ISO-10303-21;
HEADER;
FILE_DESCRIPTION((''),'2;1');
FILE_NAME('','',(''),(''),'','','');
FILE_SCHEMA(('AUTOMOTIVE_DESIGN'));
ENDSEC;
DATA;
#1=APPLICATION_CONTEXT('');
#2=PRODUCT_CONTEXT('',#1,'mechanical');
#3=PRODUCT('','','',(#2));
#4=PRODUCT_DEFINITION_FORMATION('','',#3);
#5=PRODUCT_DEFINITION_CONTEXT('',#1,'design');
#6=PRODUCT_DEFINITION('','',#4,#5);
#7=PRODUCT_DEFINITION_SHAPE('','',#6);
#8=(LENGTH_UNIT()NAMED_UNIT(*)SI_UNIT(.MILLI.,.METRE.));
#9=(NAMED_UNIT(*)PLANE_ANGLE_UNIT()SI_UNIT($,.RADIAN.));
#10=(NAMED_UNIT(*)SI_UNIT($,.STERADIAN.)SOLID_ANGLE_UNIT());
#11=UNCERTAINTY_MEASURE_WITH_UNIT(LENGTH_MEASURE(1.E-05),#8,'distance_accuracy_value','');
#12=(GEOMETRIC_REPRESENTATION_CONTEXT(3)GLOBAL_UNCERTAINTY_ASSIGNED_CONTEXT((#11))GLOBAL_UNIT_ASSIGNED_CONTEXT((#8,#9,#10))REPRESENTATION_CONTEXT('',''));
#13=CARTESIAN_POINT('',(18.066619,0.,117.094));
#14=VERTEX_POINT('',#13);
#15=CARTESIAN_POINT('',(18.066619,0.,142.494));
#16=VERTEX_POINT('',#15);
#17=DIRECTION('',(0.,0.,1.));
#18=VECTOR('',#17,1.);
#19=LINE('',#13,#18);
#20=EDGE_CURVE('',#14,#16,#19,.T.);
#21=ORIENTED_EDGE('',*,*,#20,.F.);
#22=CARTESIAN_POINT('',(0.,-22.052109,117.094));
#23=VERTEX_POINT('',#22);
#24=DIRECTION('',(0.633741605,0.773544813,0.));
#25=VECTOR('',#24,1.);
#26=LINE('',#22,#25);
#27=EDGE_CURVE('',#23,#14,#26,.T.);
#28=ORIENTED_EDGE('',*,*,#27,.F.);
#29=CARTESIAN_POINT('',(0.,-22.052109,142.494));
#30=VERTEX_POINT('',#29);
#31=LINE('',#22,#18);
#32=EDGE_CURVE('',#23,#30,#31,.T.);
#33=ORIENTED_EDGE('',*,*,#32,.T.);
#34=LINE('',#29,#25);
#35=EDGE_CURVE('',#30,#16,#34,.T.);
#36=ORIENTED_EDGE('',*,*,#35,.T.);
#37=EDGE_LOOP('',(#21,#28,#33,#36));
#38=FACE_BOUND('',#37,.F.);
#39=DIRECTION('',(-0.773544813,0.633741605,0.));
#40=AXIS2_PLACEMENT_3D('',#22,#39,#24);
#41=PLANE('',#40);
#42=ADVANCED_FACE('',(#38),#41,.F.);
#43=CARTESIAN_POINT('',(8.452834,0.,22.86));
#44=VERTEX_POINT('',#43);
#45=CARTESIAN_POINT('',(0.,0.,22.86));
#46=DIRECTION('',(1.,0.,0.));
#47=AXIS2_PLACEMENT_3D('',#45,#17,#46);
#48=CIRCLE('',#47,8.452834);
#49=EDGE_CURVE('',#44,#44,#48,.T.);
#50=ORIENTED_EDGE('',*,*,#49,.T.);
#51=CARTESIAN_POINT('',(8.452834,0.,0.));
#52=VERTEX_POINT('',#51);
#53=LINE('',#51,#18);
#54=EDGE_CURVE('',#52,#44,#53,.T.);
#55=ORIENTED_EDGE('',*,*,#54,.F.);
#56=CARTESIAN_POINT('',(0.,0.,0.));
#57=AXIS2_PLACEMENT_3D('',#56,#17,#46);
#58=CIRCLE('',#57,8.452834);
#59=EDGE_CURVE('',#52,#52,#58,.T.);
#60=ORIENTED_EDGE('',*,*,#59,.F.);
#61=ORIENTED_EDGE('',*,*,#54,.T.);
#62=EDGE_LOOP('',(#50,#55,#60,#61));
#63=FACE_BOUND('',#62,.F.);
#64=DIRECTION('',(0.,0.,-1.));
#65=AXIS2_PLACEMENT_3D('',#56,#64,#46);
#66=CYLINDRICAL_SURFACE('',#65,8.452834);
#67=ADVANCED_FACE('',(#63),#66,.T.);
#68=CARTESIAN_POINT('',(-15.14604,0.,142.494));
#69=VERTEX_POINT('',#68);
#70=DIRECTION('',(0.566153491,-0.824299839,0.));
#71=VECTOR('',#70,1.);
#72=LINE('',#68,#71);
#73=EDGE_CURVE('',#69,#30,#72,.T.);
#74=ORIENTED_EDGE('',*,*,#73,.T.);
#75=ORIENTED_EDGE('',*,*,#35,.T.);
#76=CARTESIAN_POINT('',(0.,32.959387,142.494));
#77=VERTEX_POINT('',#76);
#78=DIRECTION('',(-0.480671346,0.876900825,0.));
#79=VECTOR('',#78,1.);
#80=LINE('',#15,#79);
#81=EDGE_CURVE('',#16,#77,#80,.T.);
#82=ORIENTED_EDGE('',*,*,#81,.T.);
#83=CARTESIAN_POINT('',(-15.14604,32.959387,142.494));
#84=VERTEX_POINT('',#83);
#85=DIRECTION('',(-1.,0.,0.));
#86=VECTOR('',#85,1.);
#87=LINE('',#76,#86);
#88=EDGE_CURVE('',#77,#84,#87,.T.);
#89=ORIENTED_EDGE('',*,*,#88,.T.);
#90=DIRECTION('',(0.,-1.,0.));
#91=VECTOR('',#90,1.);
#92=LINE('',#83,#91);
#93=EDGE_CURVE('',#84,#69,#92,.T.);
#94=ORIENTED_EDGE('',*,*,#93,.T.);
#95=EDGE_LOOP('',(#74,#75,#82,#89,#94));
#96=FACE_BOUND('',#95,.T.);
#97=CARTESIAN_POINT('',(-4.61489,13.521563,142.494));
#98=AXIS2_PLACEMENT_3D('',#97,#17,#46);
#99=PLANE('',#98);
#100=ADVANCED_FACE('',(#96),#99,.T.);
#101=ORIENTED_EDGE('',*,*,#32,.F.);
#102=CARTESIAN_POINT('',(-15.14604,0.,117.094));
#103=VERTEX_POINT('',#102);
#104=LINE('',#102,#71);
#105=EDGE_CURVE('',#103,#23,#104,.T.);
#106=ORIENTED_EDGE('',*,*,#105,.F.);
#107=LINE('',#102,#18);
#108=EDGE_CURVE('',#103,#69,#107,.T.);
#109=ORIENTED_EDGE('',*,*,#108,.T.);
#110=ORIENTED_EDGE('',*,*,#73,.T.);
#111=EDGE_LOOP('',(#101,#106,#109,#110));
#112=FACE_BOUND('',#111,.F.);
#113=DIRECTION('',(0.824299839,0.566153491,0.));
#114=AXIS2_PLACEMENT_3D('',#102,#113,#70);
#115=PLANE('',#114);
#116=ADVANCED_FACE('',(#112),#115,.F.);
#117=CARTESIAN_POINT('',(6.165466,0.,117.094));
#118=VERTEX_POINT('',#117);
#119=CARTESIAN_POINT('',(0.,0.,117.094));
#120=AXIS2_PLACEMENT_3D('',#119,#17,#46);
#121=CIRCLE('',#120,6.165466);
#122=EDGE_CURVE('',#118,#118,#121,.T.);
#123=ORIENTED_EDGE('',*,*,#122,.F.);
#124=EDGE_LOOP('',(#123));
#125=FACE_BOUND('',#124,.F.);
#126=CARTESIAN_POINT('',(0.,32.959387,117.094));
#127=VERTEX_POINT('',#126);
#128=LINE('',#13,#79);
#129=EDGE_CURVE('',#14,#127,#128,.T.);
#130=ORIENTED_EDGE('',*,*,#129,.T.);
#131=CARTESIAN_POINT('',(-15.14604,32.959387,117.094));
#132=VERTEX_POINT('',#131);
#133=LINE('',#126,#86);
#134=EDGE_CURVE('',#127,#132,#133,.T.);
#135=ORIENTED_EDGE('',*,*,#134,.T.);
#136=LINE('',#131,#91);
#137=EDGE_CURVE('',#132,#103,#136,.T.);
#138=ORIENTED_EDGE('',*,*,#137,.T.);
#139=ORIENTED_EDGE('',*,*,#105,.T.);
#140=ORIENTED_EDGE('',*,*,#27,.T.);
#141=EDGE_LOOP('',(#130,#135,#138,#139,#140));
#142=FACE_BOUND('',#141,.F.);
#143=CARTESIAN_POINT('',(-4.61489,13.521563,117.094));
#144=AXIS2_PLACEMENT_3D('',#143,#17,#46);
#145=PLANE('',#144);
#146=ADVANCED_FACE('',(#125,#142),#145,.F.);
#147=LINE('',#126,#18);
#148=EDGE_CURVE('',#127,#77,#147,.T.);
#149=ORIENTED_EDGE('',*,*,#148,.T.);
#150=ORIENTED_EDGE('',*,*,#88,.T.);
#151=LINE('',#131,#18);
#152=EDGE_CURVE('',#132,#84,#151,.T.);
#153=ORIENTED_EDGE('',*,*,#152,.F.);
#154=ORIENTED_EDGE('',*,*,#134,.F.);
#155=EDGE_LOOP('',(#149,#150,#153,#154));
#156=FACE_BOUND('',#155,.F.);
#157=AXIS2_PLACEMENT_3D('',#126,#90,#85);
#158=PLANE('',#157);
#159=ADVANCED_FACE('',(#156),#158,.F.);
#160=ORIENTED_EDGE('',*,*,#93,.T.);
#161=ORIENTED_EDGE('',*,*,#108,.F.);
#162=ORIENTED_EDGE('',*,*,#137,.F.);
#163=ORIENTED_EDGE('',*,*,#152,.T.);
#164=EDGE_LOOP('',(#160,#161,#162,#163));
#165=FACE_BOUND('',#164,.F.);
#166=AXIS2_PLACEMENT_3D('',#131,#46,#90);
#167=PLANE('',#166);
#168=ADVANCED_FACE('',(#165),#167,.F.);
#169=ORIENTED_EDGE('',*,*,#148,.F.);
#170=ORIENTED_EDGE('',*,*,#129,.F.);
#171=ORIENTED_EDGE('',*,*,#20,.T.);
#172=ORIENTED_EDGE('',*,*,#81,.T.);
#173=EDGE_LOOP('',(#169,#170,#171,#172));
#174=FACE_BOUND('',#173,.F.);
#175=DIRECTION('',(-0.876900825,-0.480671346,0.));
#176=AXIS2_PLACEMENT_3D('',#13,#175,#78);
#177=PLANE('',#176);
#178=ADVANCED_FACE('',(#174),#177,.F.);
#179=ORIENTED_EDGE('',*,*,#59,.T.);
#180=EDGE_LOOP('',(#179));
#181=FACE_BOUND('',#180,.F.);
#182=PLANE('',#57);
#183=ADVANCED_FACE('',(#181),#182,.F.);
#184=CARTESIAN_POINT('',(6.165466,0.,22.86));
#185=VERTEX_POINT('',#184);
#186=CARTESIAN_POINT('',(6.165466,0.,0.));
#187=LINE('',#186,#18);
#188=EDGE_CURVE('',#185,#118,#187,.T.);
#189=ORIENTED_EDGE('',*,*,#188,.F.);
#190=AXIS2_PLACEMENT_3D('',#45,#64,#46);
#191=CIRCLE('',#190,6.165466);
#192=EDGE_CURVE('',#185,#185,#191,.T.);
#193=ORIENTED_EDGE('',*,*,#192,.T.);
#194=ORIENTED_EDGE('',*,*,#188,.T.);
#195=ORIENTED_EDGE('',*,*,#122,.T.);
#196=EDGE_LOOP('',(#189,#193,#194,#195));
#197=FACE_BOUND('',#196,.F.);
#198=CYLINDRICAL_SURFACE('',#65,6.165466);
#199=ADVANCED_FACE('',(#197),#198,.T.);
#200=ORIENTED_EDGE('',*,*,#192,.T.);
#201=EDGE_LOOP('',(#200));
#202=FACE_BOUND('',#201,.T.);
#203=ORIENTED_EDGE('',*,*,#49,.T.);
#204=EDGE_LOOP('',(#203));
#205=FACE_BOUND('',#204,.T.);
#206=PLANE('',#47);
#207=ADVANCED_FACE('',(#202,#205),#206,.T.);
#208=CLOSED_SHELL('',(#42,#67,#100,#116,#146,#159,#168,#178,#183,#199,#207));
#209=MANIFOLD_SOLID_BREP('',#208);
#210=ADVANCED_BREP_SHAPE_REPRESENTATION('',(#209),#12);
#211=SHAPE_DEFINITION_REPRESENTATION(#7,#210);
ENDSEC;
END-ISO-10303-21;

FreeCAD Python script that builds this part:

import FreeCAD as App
import Part
import Sketcher
Q = App.Units.Quantity

doc = App.newDocument("Part")
body = doc.addObject("PartDesign::Body", "Body")

# Sketch on XY plane
sketch1 = body.newObject("Sketcher::SketchObject", "Sketch")
sketch1.AttachmentSupport = (doc.getObject("XY_Plane"), [""])
sketch1.MapMode = "FlatFace"
sketch1.addGeometry(Part.Circle(App.Vector(0, 0, 0), App.Vector(0, 0, 1), 6.165466), False)
sketch1.addConstraint([
    Sketcher.Constraint("Coincident", 0, 3, -1, 1),
    Sketcher.Constraint("Diameter", 0, 12.330933),
])
pad1 = body.newObject("PartDesign::Pad", "Pad")
pad1.Profile = sketch1
pad1.Length = Q("4.61 in")

# Sketch on XY plane
sketch2 = body.newObject("Sketcher::SketchObject", "Sketch001")
sketch2.AttachmentSupport = (doc.getObject("XY_Plane"), [""])
sketch2.MapMode = "FlatFace"
sketch2.addGeometry(Part.Circle(App.Vector(0, 0, 0), App.Vector(0, 0, 1), 8.452834), False)
sketch2.addConstraint([
    Sketcher.Constraint("Coincident", 0, 3, -1, 1),
    Sketcher.Constraint("Diameter", 0, 16.905667),
])
pad2 = body.newObject("PartDesign::Pad", "Pad001")
pad2.Profile = sketch2
pad2.Length = Q("0.9 in")

# Sketch on XY plane
sketch3 = body.newObject("Sketcher::SketchObject", "Sketch002")
sketch3.AttachmentSupport = (doc.getObject("XY_Plane"), [""])
sketch3.MapMode = "FlatFace"
sketch3.AttachmentOffset = App.Placement(App.Vector(0, 0, 4.61 * 25.4), App.Rotation())
sketch3.addGeometry([
    Part.LineSegment(App.Vector(-15.14604, 0, 0), App.Vector(0, -22.052109, 0)),  # 0
    Part.LineSegment(App.Vector(0, -22.052109, 0), App.Vector(18.066619, 0, 0)),  # 1
    Part.LineSegment(App.Vector(18.066619, 0, 0), App.Vector(0, 32.959387, 0)),  # 2
    Part.LineSegment(App.Vector(0, 32.959387, 0), App.Vector(-15.14604, 32.959387, 0)),  # 3
    Part.LineSegment(App.Vector(-15.14604, 32.959387, 0), App.Vector(-15.14604, 0, 0)),  # 4
], False)
sketch3.addConstraint([
    Sketcher.Constraint("Coincident", 0, 2, 1, 1),
    Sketcher.Constraint("Coincident", 1, 2, 2, 1),
    Sketcher.Constraint("Coincident", 2, 2, 3, 1),
    Sketcher.Constraint("Coincident", 3, 2, 4, 1),
    Sketcher.Constraint("Coincident", 4, 2, 0, 1),
    Sketcher.Constraint("Horizontal", 3),
    Sketcher.Constraint("Vertical", 4),
    Sketcher.Constraint("PointOnObject", 0, 2, -2),
    Sketcher.Constraint("PointOnObject", 1, 2, -1),
    Sketcher.Constraint("PointOnObject", 2, 2, -2),
    Sketcher.Constraint("PointOnObject", 4, 2, -1),
    Sketcher.Constraint("DistanceX", 3, 2, 3, 1, 15.14604),
    Sketcher.Constraint("Distance", 2, 37.586219),
    Sketcher.Constraint("DistanceY", 4, 2, 4, 1, 32.959387),
    Sketcher.Constraint("DistanceY", 0, 2, -1, 1, 22.052109),
])
pad3 = body.newObject("PartDesign::Pad", "Pad002")
pad3.Profile = sketch3
pad3.Length = Q("1 in")

doc.recompute()
